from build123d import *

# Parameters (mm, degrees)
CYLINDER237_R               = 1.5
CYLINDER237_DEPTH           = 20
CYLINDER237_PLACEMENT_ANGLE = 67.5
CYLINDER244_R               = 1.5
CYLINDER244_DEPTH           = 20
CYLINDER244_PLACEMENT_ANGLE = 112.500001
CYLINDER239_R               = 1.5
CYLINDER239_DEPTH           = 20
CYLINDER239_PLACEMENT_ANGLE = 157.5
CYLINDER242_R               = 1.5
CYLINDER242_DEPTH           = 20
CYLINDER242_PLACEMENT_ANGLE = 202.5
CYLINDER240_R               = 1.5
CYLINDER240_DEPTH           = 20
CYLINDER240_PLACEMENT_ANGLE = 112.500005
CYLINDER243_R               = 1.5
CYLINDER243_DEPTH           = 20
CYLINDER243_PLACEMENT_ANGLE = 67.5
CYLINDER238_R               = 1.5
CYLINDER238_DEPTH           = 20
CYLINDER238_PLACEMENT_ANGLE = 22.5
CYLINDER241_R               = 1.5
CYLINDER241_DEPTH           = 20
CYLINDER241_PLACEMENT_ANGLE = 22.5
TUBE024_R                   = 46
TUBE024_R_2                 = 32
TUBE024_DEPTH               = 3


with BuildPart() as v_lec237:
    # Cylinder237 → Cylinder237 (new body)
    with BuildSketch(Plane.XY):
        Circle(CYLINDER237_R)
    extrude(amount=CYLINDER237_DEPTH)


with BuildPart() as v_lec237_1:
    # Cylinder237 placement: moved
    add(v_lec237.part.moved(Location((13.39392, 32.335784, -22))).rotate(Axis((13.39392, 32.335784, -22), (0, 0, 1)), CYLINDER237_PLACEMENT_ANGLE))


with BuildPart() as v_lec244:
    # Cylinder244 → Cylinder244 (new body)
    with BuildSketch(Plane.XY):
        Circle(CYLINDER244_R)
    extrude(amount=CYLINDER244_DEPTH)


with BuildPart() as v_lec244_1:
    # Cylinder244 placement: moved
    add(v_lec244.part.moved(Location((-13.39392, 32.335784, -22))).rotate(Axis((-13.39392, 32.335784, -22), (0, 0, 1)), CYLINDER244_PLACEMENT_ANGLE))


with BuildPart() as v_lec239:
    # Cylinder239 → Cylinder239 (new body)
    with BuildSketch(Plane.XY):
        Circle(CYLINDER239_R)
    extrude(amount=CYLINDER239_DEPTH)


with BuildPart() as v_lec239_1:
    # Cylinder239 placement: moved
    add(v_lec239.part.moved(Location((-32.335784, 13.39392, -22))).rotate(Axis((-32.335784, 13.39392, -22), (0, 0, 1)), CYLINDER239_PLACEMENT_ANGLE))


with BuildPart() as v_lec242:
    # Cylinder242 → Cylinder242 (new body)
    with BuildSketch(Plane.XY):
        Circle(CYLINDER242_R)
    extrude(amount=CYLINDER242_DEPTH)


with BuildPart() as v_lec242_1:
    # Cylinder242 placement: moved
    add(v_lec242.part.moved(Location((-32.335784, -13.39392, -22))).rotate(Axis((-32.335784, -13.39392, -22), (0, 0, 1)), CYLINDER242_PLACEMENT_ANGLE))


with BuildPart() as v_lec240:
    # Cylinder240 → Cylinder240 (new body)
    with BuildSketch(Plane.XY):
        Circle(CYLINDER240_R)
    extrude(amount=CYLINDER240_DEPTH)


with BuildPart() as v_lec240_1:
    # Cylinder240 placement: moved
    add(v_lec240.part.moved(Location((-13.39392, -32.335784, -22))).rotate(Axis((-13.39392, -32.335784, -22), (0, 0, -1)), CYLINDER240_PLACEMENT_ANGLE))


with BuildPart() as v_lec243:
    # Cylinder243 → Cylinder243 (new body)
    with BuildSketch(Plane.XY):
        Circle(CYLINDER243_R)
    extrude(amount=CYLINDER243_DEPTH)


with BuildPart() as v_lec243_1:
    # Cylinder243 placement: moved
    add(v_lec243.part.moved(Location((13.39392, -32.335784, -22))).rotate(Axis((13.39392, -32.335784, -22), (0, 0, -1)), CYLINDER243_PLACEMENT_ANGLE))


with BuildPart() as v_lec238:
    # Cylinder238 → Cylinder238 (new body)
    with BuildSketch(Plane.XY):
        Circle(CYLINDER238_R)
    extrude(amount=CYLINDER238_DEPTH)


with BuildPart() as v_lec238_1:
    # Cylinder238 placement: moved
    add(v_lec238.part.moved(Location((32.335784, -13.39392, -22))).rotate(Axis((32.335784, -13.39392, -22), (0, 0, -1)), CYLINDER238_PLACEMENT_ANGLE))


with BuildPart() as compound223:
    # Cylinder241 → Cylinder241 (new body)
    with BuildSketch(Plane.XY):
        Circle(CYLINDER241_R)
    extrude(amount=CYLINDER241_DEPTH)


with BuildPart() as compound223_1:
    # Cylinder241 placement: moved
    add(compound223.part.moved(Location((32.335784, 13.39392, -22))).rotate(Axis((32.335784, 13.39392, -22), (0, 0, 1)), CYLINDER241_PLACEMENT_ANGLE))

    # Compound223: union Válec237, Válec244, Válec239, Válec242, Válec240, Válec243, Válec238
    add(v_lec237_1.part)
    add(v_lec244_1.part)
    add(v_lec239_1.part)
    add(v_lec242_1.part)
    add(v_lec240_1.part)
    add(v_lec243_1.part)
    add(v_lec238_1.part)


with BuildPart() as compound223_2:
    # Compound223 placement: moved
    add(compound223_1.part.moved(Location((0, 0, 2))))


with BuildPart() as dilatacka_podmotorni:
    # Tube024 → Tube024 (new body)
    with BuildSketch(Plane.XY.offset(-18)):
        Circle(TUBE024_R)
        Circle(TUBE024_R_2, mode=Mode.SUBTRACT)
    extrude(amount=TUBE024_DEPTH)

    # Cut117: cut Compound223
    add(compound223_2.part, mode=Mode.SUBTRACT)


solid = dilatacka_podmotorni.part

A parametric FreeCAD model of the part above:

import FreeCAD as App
import Part
import Sketcher
Q = App.Units.Quantity

doc = App.newDocument("Part")
body = doc.addObject("PartDesign::Body", "Body")

sketch1 = doc.addObject("Sketcher::SketchObject", "Sketch")
body.addObject(sketch1)
sketch1.AttachmentSupport = (doc.XY_Plane, [""])
sketch1.MapMode = "FlatFace"
sketch1.addGeometry(Part.Circle(App.Vector(0, 0, 0), App.Vector(0, 0, 1), 1.5), False)
sketch1.addConstraint(Sketcher.Constraint("Coincident", 0, 3, -1, 1))
sketch1.addConstraint(Sketcher.Constraint("Diameter", 0, Q("3 mm")))
pad1 = doc.addObject("PartDesign::Pad", "Pad")
body.addObject(pad1)
pad1.Profile = sketch1
pad1.Length = 20
body2 = doc.addObject("PartDesign::Body", "Body001")
doc.recompute()

body.Placement = App.Placement(App.Vector(13.39392, 32.335784, -22), App.Rotation(App.Vector(0, 0, 1), 67.5))
boolean = doc.addObject("PartDesign::Boolean", "Boolean")
body2.addObject(boolean)
boolean.Type = "Fuse"
boolean.addObjects([body])
body3 = doc.addObject("PartDesign::Body", "Body002")

sketch2 = doc.addObject("Sketcher::SketchObject", "Sketch001")
body3.addObject(sketch2)
sketch2.AttachmentSupport = (doc.getObject("XY_Plane002"), [""])
sketch2.MapMode = "FlatFace"
sketch2.addGeometry(Part.Circle(App.Vector(0, 0, 0), App.Vector(0, 0, 1), 1.5), False)
sketch2.addConstraint(Sketcher.Constraint("Coincident", 0, 3, -1, 1))
sketch2.addConstraint(Sketcher.Constraint("Diameter", 0, Q("3 mm")))
pad2 = doc.addObject("PartDesign::Pad", "Pad001")
body3.addObject(pad2)
pad2.Profile = sketch2
pad2.Length = 20
body4 = doc.addObject("PartDesign::Body", "Body003")
doc.recompute()

body3.Placement = App.Placement(App.Vector(-13.39392, 32.335784, -22), App.Rotation(App.Vector(0, 0, 1), 112.500001))
boolean2 = doc.addObject("PartDesign::Boolean", "Boolean001")
body4.addObject(boolean2)
boolean2.Type = "Fuse"
boolean2.addObjects([body3])
body5 = doc.addObject("PartDesign::Body", "Body004")

sketch3 = doc.addObject("Sketcher::SketchObject", "Sketch002")
body5.addObject(sketch3)
sketch3.AttachmentSupport = (doc.getObject("XY_Plane004"), [""])
sketch3.MapMode = "FlatFace"
sketch3.addGeometry(Part.Circle(App.Vector(0, 0, 0), App.Vector(0, 0, 1), 1.5), False)
sketch3.addConstraint(Sketcher.Constraint("Coincident", 0, 3, -1, 1))
sketch3.addConstraint(Sketcher.Constraint("Diameter", 0, Q("3 mm")))
pad3 = doc.addObject("PartDesign::Pad", "Pad002")
body5.addObject(pad3)
pad3.Profile = sketch3
pad3.Length = 20
body6 = doc.addObject("PartDesign::Body", "Body005")
doc.recompute()

body5.Placement = App.Placement(App.Vector(-32.335784, 13.39392, -22), App.Rotation(App.Vector(0, 0, 1), 157.5))
boolean3 = doc.addObject("PartDesign::Boolean", "Boolean002")
body6.addObject(boolean3)
boolean3.Type = "Fuse"
boolean3.addObjects([body5])
body7 = doc.addObject("PartDesign::Body", "Body006")

sketch4 = doc.addObject("Sketcher::SketchObject", "Sketch003")
body7.addObject(sketch4)
sketch4.AttachmentSupport = (doc.getObject("XY_Plane006"), [""])
sketch4.MapMode = "FlatFace"
sketch4.addGeometry(Part.Circle(App.Vector(0, 0, 0), App.Vector(0, 0, 1), 1.5), False)
sketch4.addConstraint(Sketcher.Constraint("Coincident", 0, 3, -1, 1))
sketch4.addConstraint(Sketcher.Constraint("Diameter", 0, Q("3 mm")))
pad4 = doc.addObject("PartDesign::Pad", "Pad003")
body7.addObject(pad4)
pad4.Profile = sketch4
pad4.Length = 20
body8 = doc.addObject("PartDesign::Body", "Body007")
doc.recompute()

body7.Placement = App.Placement(App.Vector(-32.335784, -13.39392, -22), App.Rotation(App.Vector(0, 0, 1), 202.5))
boolean4 = doc.addObject("PartDesign::Boolean", "Boolean003")
body8.addObject(boolean4)
boolean4.Type = "Fuse"
boolean4.addObjects([body7])
body9 = doc.addObject("PartDesign::Body", "Body008")

sketch5 = doc.addObject("Sketcher::SketchObject", "Sketch004")
body9.addObject(sketch5)
sketch5.AttachmentSupport = (doc.getObject("XY_Plane008"), [""])
sketch5.MapMode = "FlatFace"
sketch5.addGeometry(Part.Circle(App.Vector(0, 0, 0), App.Vector(0, 0, 1), 1.5), False)
sketch5.addConstraint(Sketcher.Constraint("Coincident", 0, 3, -1, 1))
sketch5.addConstraint(Sketcher.Constraint("Diameter", 0, Q("3 mm")))
pad5 = doc.addObject("PartDesign::Pad", "Pad004")
body9.addObject(pad5)
pad5.Profile = sketch5
pad5.Length = 20
body10 = doc.addObject("PartDesign::Body", "Body009")
doc.recompute()

body9.Placement = App.Placement(App.Vector(-13.39392, -32.335784, -22), App.Rotation(App.Vector(0, 0, -1), 112.500005))
boolean5 = doc.addObject("PartDesign::Boolean", "Boolean004")
body10.addObject(boolean5)
boolean5.Type = "Fuse"
boolean5.addObjects([body9])
body11 = doc.addObject("PartDesign::Body", "Body010")

sketch6 = doc.addObject("Sketcher::SketchObject", "Sketch005")
body11.addObject(sketch6)
sketch6.AttachmentSupport = (doc.getObject("XY_Plane010"), [""])
sketch6.MapMode = "FlatFace"
sketch6.addGeometry(Part.Circle(App.Vector(0, 0, 0), App.Vector(0, 0, 1), 1.5), False)
sketch6.addConstraint(Sketcher.Constraint("Coincident", 0, 3, -1, 1))
sketch6.addConstraint(Sketcher.Constraint("Diameter", 0, Q("3 mm")))
pad6 = doc.addObject("PartDesign::Pad", "Pad005")
body11.addObject(pad6)
pad6.Profile = sketch6
pad6.Length = 20
body12 = doc.addObject("PartDesign::Body", "Body011")
doc.recompute()

body11.Placement = App.Placement(App.Vector(13.39392, -32.335784, -22), App.Rotation(App.Vector(0, 0, -1), 67.5))
boolean6 = doc.addObject("PartDesign::Boolean", "Boolean005")
body12.addObject(boolean6)
boolean6.Type = "Fuse"
boolean6.addObjects([body11])
body13 = doc.addObject("PartDesign::Body", "Body012")

sketch7 = doc.addObject("Sketcher::SketchObject", "Sketch006")
body13.addObject(sketch7)
sketch7.AttachmentSupport = (doc.getObject("XY_Plane012"), [""])
sketch7.MapMode = "FlatFace"
sketch7.addGeometry(Part.Circle(App.Vector(0, 0, 0), App.Vector(0, 0, 1), 1.5), False)
sketch7.addConstraint(Sketcher.Constraint("Coincident", 0, 3, -1, 1))
sketch7.addConstraint(Sketcher.Constraint("Diameter", 0, Q("3 mm")))
pad7 = doc.addObject("PartDesign::Pad", "Pad006")
body13.addObject(pad7)
pad7.Profile = sketch7
pad7.Length = 20
body14 = doc.addObject("PartDesign::Body", "Body013")
doc.recompute()

body13.Placement = App.Placement(App.Vector(32.335784, -13.39392, -22), App.Rotation(App.Vector(0, 0, -1), 22.5))
boolean7 = doc.addObject("PartDesign::Boolean", "Boolean006")
body14.addObject(boolean7)
boolean7.Type = "Fuse"
boolean7.addObjects([body13])
body15 = doc.addObject("PartDesign::Body", "Body014")

sketch8 = doc.addObject("Sketcher::SketchObject", "Sketch007")
body15.addObject(sketch8)
sketch8.AttachmentSupport = (doc.getObject("XY_Plane014"), [""])
sketch8.MapMode = "FlatFace"
sketch8.addGeometry(Part.Circle(App.Vector(0, 0, 0), App.Vector(0, 0, 1), 1.5), False)
sketch8.addConstraint(Sketcher.Constraint("Coincident", 0, 3, -1, 1))
sketch8.addConstraint(Sketcher.Constraint("Diameter", 0, Q("3 mm")))
pad8 = doc.addObject("PartDesign::Pad", "Pad007")
body15.addObject(pad8)
pad8.Profile = sketch8
pad8.Length = 20
body16 = doc.addObject("PartDesign::Body", "Body015")
body16.AllowCompound = True
doc.recompute()

body15.Placement = App.Placement(App.Vector(32.335784, 13.39392, -22), App.Rotation(App.Vector(0, 0, 1), 22.5))
boolean8 = doc.addObject("PartDesign::Boolean", "Boolean007")
body16.addObject(boolean8)
boolean8.Type = "Fuse"
boolean8.addObjects([body15])
doc.recompute()

boolean9 = doc.addObject("PartDesign::Boolean", "Boolean008")
body16.addObject(boolean9)
boolean9.Type = "Fuse"
boolean9.addObjects([body2])
doc.recompute()

boolean10 = doc.addObject("PartDesign::Boolean", "Boolean009")
body16.addObject(boolean10)
boolean10.Type = "Fuse"
boolean10.addObjects([body4])
doc.recompute()

boolean11 = doc.addObject("PartDesign::Boolean", "Boolean010")
body16.addObject(boolean11)
boolean11.Type = "Fuse"
boolean11.addObjects([body6])
doc.recompute()

boolean12 = doc.addObject("PartDesign::Boolean", "Boolean011")
body16.addObject(boolean12)
boolean12.Type = "Fuse"
boolean12.addObjects([body8])
doc.recompute()

boolean13 = doc.addObject("PartDesign::Boolean", "Boolean012")
body16.addObject(boolean13)
boolean13.Type = "Fuse"
boolean13.addObjects([body10])
doc.recompute()

boolean14 = doc.addObject("PartDesign::Boolean", "Boolean013")
body16.addObject(boolean14)
boolean14.Type = "Fuse"
boolean14.addObjects([body12])
doc.recompute()

boolean15 = doc.addObject("PartDesign::Boolean", "Boolean014")
body16.addObject(boolean15)
boolean15.Type = "Fuse"
boolean15.addObjects([body14])
body17 = doc.addObject("PartDesign::Body", "Body016")
body17.AllowCompound = True
doc.recompute()

body16.Placement = App.Placement(App.Vector(0, 0, 2), App.Rotation(App.Vector(0, 0, 1), 0))
boolean16 = doc.addObject("PartDesign::Boolean", "Boolean015")
body17.addObject(boolean16)
boolean16.Type = "Fuse"
boolean16.addObjects([body16])
body18 = doc.addObject("PartDesign::Body", "Body017")

sketch9 = doc.addObject("Sketcher::SketchObject", "Sketch008")
body18.addObject(sketch9)
sketch9.AttachmentSupport = (doc.getObject("XY_Plane017"), [""])
sketch9.MapMode = "FlatFace"
sketch9.AttachmentOffset = App.Placement(App.Vector(0, 0, -18), App.Rotation())
sketch9.addGeometry(Part.Circle(App.Vector(0, 0, 0), App.Vector(0, 0, 1), 46), False)
sketch9.addGeometry(Part.Circle(App.Vector(0, 0, 0), App.Vector(0, 0, 1), 32), False)
sketch9.addConstraint(Sketcher.Constraint("Coincident", 0, 3, -1, 1))
sketch9.addConstraint(Sketcher.Constraint("Coincident", 1, 3, -1, 1))
sketch9.addConstraint(Sketcher.Constraint("Diameter", 0, Q("92 mm")))
sketch9.addConstraint(Sketcher.Constraint("Diameter", 1, Q("64 mm")))
pad9 = doc.addObject("PartDesign::Pad", "Pad008")
body18.addObject(pad9)
pad9.Profile = sketch9
pad9.Length = 3
doc.recompute()

boolean17 = doc.addObject("PartDesign::Boolean", "Boolean016")
body18.addObject(boolean17)
boolean17.Type = "Cut"
boolean17.addObjects([body17])

doc.recompute()
